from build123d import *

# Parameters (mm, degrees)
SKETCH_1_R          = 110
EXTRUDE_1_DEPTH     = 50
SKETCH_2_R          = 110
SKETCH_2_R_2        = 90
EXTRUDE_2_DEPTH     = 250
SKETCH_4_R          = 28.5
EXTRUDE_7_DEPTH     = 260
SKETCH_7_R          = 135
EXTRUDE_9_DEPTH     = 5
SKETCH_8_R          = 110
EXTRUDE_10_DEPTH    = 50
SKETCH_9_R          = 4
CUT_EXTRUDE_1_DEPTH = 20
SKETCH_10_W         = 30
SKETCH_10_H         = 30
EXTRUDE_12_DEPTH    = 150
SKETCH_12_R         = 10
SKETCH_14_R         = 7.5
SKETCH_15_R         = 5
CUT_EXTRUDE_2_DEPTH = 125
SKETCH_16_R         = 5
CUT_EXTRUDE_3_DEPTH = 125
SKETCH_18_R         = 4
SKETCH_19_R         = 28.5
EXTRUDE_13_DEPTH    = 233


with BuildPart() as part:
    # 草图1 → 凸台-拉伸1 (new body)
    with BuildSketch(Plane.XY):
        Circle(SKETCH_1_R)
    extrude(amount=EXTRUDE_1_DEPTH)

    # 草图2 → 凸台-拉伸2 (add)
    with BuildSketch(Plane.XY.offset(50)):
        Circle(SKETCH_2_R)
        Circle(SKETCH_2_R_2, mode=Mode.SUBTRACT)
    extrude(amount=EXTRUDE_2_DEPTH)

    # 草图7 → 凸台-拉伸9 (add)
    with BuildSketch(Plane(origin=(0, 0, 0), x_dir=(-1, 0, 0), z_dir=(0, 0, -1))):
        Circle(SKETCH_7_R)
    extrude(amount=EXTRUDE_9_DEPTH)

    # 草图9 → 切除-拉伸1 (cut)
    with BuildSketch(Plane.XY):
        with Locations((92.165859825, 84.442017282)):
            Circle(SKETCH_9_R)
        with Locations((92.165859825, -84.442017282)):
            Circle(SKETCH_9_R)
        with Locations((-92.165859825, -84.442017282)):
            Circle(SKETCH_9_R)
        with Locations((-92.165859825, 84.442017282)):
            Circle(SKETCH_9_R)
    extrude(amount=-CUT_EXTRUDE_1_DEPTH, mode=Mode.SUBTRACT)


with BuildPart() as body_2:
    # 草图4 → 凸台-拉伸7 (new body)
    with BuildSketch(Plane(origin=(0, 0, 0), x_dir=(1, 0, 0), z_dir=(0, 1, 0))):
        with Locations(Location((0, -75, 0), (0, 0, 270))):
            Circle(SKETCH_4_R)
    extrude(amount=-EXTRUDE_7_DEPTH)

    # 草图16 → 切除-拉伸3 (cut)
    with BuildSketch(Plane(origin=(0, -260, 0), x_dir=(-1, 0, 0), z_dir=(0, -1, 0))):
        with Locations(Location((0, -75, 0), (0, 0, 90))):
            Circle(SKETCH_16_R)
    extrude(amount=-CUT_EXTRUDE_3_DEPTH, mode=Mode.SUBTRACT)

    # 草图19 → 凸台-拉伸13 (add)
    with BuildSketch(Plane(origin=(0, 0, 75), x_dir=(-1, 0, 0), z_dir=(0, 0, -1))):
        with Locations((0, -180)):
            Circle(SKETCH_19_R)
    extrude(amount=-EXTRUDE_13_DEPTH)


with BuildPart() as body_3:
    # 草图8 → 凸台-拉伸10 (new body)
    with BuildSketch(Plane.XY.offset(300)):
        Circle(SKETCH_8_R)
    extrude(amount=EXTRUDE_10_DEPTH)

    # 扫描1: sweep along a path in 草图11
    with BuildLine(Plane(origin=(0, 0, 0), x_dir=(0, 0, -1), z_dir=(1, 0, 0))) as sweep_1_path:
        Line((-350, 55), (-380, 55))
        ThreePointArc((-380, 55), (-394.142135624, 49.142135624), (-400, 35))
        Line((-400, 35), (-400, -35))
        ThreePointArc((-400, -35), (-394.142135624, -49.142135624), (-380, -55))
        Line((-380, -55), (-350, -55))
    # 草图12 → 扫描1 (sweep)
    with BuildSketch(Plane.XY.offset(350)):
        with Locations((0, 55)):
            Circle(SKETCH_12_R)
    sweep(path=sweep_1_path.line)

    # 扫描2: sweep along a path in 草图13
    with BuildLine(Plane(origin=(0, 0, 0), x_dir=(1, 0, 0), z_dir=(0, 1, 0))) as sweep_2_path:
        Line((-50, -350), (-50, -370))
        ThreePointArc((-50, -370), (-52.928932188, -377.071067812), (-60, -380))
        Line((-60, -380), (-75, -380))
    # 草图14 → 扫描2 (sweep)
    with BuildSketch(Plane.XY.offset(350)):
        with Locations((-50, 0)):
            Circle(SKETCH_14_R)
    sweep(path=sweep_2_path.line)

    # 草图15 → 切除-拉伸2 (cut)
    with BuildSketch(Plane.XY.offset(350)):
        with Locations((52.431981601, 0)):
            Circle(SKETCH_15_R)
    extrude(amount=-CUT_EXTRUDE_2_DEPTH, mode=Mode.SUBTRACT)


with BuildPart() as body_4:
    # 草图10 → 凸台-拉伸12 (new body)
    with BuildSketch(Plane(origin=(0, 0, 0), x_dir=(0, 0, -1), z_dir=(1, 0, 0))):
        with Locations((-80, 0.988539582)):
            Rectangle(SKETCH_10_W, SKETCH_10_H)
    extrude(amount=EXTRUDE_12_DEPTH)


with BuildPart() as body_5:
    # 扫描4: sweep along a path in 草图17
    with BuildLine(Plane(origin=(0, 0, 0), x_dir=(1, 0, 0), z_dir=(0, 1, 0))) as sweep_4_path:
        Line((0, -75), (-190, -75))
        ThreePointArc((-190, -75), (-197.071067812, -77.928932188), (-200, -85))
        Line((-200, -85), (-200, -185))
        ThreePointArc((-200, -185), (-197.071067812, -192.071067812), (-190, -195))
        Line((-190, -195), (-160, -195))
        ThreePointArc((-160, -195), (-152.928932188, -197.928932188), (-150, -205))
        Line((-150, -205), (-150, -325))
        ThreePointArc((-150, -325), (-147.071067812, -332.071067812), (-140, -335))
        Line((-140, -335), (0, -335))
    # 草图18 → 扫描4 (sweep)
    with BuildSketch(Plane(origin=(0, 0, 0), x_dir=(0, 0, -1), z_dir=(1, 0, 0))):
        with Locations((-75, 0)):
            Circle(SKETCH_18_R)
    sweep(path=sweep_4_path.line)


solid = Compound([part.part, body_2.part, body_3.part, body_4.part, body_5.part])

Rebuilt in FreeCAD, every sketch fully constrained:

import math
import FreeCAD as App
import Part
import Sketcher

V = App.Vector

doc = App.newDocument("Part")
params = doc.addObject("Spreadsheet::Sheet", "Params")
for row, (alias, value) in enumerate([
    ("sketch1_diameter", "220 mm"),
    ("pad1_length", "50 mm"),
    ("sketch2_diameter", "220 mm"),
    ("sketch2_diameter2", "180 mm"),
    ("pad2_length", "250 mm"),
    ("sketch3_diameter", "270 mm"),
    ("pad3_length", "5 mm"),
    ("sketch4_diameter", "8 mm"),
    ("pocket1_length", "20 mm"),
    ("sketch5_diameter", "57 mm"),
    ("pad4_length", "260 mm"),
    ("sketch6_diameter", "10 mm"),
    ("pocket2_length", "125 mm"),
    ("sketch7_diameter", "57 mm"),
    ("pad5_length", "233 mm"),
    ("sketch8_diameter", "220 mm"),
    ("pad6_length", "50 mm"),
    ("sketch9_diameter", "20 mm"),
    ("sketch10_radius", "20 mm"),
    ("sketch10_width", "70 mm"),
    ("sketch10_height", "30 mm"),
    ("sketch11_diameter", "15 mm"),
    ("sketch12_radius", "10 mm"),
    ("sketch12_width", "15 mm"),
    ("sketch12_height", "20 mm"),
    ("sketch13_diameter", "10 mm"),
    ("pocket3_length", "125 mm"),
    ("sketch14_width", "30 mm"),
    ("pad7_length", "150 mm"),
    ("sketch15_diameter", "8 mm"),
    ("sketch16_radius", "10 mm"),
    ("sketch16_width", "190 mm"),
    ("sketch16_width2", "30 mm"),
    ("sketch16_height", "100 mm"),
    ("sketch16_height2", "120 mm"),
], start=1):
    params.set(f"A{row}", alias)
    params.set(f"B{row}", "=" + value)
    params.setAlias(f"B{row}", alias)

body = doc.addObject("PartDesign::Body", "Body")

# Sketch on XY plane
sketch1 = doc.addObject("Sketcher::SketchObject", "Sketch")
body.addObject(sketch1)
sketch1.AttachmentSupport = (doc.XY_Plane, [""])
sketch1.MapMode = "FlatFace"
sketch1.addGeometry(Part.Circle(V(0, 0, 0), V(0, 0, 1), 110), False)
sketch1.addConstraint(Sketcher.Constraint("Coincident", 0, 3, -1, 1))
sketch1.addConstraint(Sketcher.Constraint("Diameter", 0, 220.0))
sketch1.setExpression("Constraints[1]", "Params.sketch1_diameter")
pad1 = doc.addObject("PartDesign::Pad", "Pad")
body.addObject(pad1)
pad1.Profile = sketch1
pad1.setExpression("Length", "Params.pad1_length")

# Sketch on XY plane
sketch2 = doc.addObject("Sketcher::SketchObject", "Sketch001")
body.addObject(sketch2)
sketch2.AttachmentSupport = (doc.XY_Plane, [""])
sketch2.MapMode = "FlatFace"
sketch2.AttachmentOffset = App.Placement(V(0, 0, 50), App.Rotation())
sketch2.addGeometry(Part.Circle(V(0, 0, 0), V(0, 0, 1), 110), False)
sketch2.addGeometry(Part.Circle(V(0, 0, 0), V(0, 0, 1), 90), False)
sketch2.addConstraint(Sketcher.Constraint("Coincident", 0, 3, -1, 1))
sketch2.addConstraint(Sketcher.Constraint("Coincident", 1, 3, -1, 1))
sketch2.addConstraint(Sketcher.Constraint("Diameter", 0, 220.0))
sketch2.addConstraint(Sketcher.Constraint("Diameter", 1, 180.0))
sketch2.setExpression("Constraints[2]", "Params.sketch2_diameter")
sketch2.setExpression("Constraints[3]", "Params.sketch2_diameter2")
pad2 = doc.addObject("PartDesign::Pad", "Pad001")
body.addObject(pad2)
pad2.Profile = sketch2
pad2.setExpression("Length", "Params.pad2_length")

# Sketch on XY plane
sketch3 = doc.addObject("Sketcher::SketchObject", "Sketch002")
body.addObject(sketch3)
sketch3.AttachmentSupport = (doc.XY_Plane, [""])
sketch3.MapMode = "FlatFace"
sketch3.addGeometry(Part.Circle(V(0, 0, 0), V(0, 0, 1), 135), False)
sketch3.addConstraint(Sketcher.Constraint("Coincident", 0, 3, -1, 1))
sketch3.addConstraint(Sketcher.Constraint("Diameter", 0, 270.0))
sketch3.setExpression("Constraints[1]", "Params.sketch3_diameter")
pad3 = doc.addObject("PartDesign::Pad", "Pad002")
body.addObject(pad3)
pad3.Profile = sketch3
pad3.setExpression("Length", "Params.pad3_length")
pad3.Reversed = True

# Sketch on XY plane
sketch4 = doc.addObject("Sketcher::SketchObject", "Sketch003")
body.addObject(sketch4)
sketch4.AttachmentSupport = (doc.XY_Plane, [""])
sketch4.MapMode = "FlatFace"
sketch4.addGeometry(Part.Circle(V(92.2, 84.4, 0), V(0, 0, 1), 4), False)
sketch4.addGeometry(Part.Circle(V(92.2, -84.4, 0), V(0, 0, 1), 4), False)
sketch4.addGeometry(Part.Circle(V(-92.2, -84.4, 0), V(0, 0, 1), 4), False)
sketch4.addGeometry(Part.Circle(V(-92.2, 84.4, 0), V(0, 0, 1), 4), False)
sketch4.addConstraint(Sketcher.Constraint("Equal", 0, 1))
sketch4.addConstraint(Sketcher.Constraint("Equal", 1, 2))
sketch4.addConstraint(Sketcher.Constraint("Equal", 2, 3))
sketch4.addConstraint(Sketcher.Constraint("Symmetric", 0, 3, 2, 3, -1, 1))
sketch4.addConstraint(Sketcher.Constraint("Symmetric", 1, 3, 3, 3, -1, 1))
sketch4.addConstraint(Sketcher.Constraint("Symmetric", 1, 3, 2, 3, -2))
sketch4.addConstraint(Sketcher.Constraint("Diameter", 0, 8.0))
sketch4.addConstraint(Sketcher.Constraint("DistanceX", -1, 1, 0, 3, 92.16586))
sketch4.addConstraint(Sketcher.Constraint("DistanceY", -1, 1, 0, 3, 84.442017))
sketch4.setExpression("Constraints[6]", "Params.sketch4_diameter")
pocket1 = doc.addObject("PartDesign::Pocket", "Pocket")
body.addObject(pocket1)
pocket1.Profile = sketch4
pocket1.setExpression("Length", "Params.pocket1_length")
body2 = doc.addObject("PartDesign::Body", "Body001")

# Sketch on XZ plane
sketch5 = doc.addObject("Sketcher::SketchObject", "Sketch004")
body2.addObject(sketch5)
sketch5.AttachmentSupport = (doc.getObject("XZ_Plane001"), [""])
sketch5.MapMode = "FlatFace"
sketch5.addGeometry(Part.Circle(V(0, 75, 0), V(0, 0, 1), 28), False)
sketch5.addConstraint(Sketcher.Constraint("PointOnObject", 0, 3, -2))
sketch5.addConstraint(Sketcher.Constraint("Diameter", 0, 57.0))
sketch5.addConstraint(Sketcher.Constraint("DistanceY", -1, 1, 0, 3, 75.0))
sketch5.setExpression("Constraints[1]", "Params.sketch5_diameter")
pad4 = doc.addObject("PartDesign::Pad", "Pad003")
body2.addObject(pad4)
pad4.Profile = sketch5
pad4.setExpression("Length", "Params.pad4_length")

# Sketch on XZ plane
sketch6 = doc.addObject("Sketcher::SketchObject", "Sketch005")
body2.addObject(sketch6)
sketch6.AttachmentSupport = (doc.getObject("XZ_Plane001"), [""])
sketch6.MapMode = "FlatFace"
sketch6.AttachmentOffset = App.Placement(V(0, 0, 260), App.Rotation())
sketch6.addGeometry(Part.Circle(V(0, 75, 0), V(0, 0, 1), 5), False)
sketch6.addConstraint(Sketcher.Constraint("PointOnObject", 0, 3, -2))
sketch6.addConstraint(Sketcher.Constraint("Diameter", 0, 10.0))
sketch6.addConstraint(Sketcher.Constraint("DistanceY", -1, 1, 0, 3, 75.0))
sketch6.setExpression("Constraints[1]", "Params.sketch6_diameter")
pocket2 = doc.addObject("PartDesign::Pocket", "Pocket001")
body2.addObject(pocket2)
pocket2.Profile = sketch6
pocket2.setExpression("Length", "Params.pocket2_length")

# Sketch on XY plane
sketch7 = doc.addObject("Sketcher::SketchObject", "Sketch006")
body2.addObject(sketch7)
sketch7.AttachmentSupport = (doc.getObject("XY_Plane001"), [""])
sketch7.MapMode = "FlatFace"
sketch7.AttachmentOffset = App.Placement(V(0, 0, 75), App.Rotation())
sketch7.addGeometry(Part.Circle(V(0, -180, 0), V(0, 0, 1), 28), False)
sketch7.addConstraint(Sketcher.Constraint("PointOnObject", 0, 3, -2))
sketch7.addConstraint(Sketcher.Constraint("Diameter", 0, 57.0))
sketch7.addConstraint(Sketcher.Constraint("DistanceY", 0, 3, -1, 1, 180.0))
sketch7.setExpression("Constraints[1]", "Params.sketch7_diameter")
pad5 = doc.addObject("PartDesign::Pad", "Pad004")
body2.addObject(pad5)
pad5.Profile = sketch7
pad5.setExpression("Length", "Params.pad5_length")
body3 = doc.addObject("PartDesign::Body", "Body002")

# Sketch on XY plane
sketch8 = doc.addObject("Sketcher::SketchObject", "Sketch007")
body3.addObject(sketch8)
sketch8.AttachmentSupport = (doc.getObject("XY_Plane002"), [""])
sketch8.MapMode = "FlatFace"
sketch8.AttachmentOffset = App.Placement(V(0, 0, 300), App.Rotation())
sketch8.addGeometry(Part.Circle(V(0, 0, 0), V(0, 0, 1), 110), False)
sketch8.addConstraint(Sketcher.Constraint("Coincident", 0, 3, -1, 1))
sketch8.addConstraint(Sketcher.Constraint("Diameter", 0, 220.0))
sketch8.setExpression("Constraints[1]", "Params.sketch8_diameter")
pad6 = doc.addObject("PartDesign::Pad", "Pad005")
body3.addObject(pad6)
pad6.Profile = sketch8
pad6.setExpression("Length", "Params.pad6_length")

# Sketch on XY plane
sketch9 = doc.addObject("Sketcher::SketchObject", "Sketch008")
body3.addObject(sketch9)
sketch9.AttachmentSupport = (doc.getObject("XY_Plane002"), [""])
sketch9.MapMode = "FlatFace"
sketch9.AttachmentOffset = App.Placement(V(0, 0, 350), App.Rotation())
sketch9.addGeometry(Part.Circle(V(0, 55, 0), V(0, 0, 1), 10), False)
sketch9.addConstraint(Sketcher.Constraint("PointOnObject", 0, 3, -2))
sketch9.addConstraint(Sketcher.Constraint("Diameter", 0, 20.0))
sketch9.addConstraint(Sketcher.Constraint("DistanceY", -1, 1, 0, 3, 55.0))
sketch9.setExpression("Constraints[1]", "Params.sketch9_diameter")

# Sketch on YZ plane
sketch10 = doc.addObject("Sketcher::SketchObject", "Sketch009")
body3.addObject(sketch10)
sketch10.AttachmentSupport = (doc.getObject("YZ_Plane002"), [""])
sketch10.MapMode = "FlatFace"
sketch10.addGeometry(Part.LineSegment(V(55, 350, 0), V(55, 380, 0)), False)
sketch10.addGeometry(Part.ArcOfCircle(Part.Circle(V(35, 380, 0), V(0, 0, 1), 20), math.radians(0), math.radians(90)), False)
sketch10.addGeometry(Part.LineSegment(V(35, 400, 0), V(-35, 400, 0)), False)
sketch10.addGeometry(Part.ArcOfCircle(Part.Circle(V(-35, 380, 0), V(0, 0, 1), 20), math.radians(90), math.radians(180)), False)
sketch10.addGeometry(Part.LineSegment(V(-55, 380, 0), V(-55, 350, 0)), False)
sketch10.addConstraint(Sketcher.Constraint("Tangent", 0, 2, 1, 1))
sketch10.addConstraint(Sketcher.Constraint("Tangent", 1, 2, 2, 1))
sketch10.addConstraint(Sketcher.Constraint("Tangent", 2, 2, 3, 1))
sketch10.addConstraint(Sketcher.Constraint("Tangent", 3, 2, 4, 1))
sketch10.addConstraint(Sketcher.Constraint("Vertical", 0))
sketch10.addConstraint(Sketcher.Constraint("Horizontal", 2))
sketch10.addConstraint(Sketcher.Constraint("Vertical", 4))
sketch10.addConstraint(Sketcher.Constraint("Equal", 1, 3))
sketch10.addConstraint(Sketcher.Constraint("Symmetric", 0, 1, 4, 2, -2))
sketch10.addConstraint(Sketcher.Constraint("Radius", 1, 20.0))
sketch10.addConstraint(Sketcher.Constraint("DistanceX", 2, 2, 2, 1, 70.0))
sketch10.addConstraint(Sketcher.Constraint("DistanceY", 0, 1, 0, 2, 30.0))
sketch10.addConstraint(Sketcher.Constraint("DistanceY", -1, 1, 1, 3, 380.0))
sketch10.setExpression("Constraints[9]", "Params.sketch10_radius")
sketch10.setExpression("Constraints[10]", "Params.sketch10_width")
sketch10.setExpression("Constraints[11]", "Params.sketch10_height")
doc.recompute()

additivepipe = doc.addObject("PartDesign::AdditivePipe", "AdditivePipe")
body3.addObject(additivepipe)
additivepipe.Profile = sketch9
additivepipe.Spine = (sketch10, ["Edge1", "Edge2", "Edge3", "Edge4", "Edge5"])

# Sketch on XY plane
sketch11 = doc.addObject("Sketcher::SketchObject", "Sketch010")
body3.addObject(sketch11)
sketch11.AttachmentSupport = (doc.getObject("XY_Plane002"), [""])
sketch11.MapMode = "FlatFace"
sketch11.AttachmentOffset = App.Placement(V(0, 0, 350), App.Rotation())
sketch11.addGeometry(Part.Circle(V(-50, 0, 0), V(0, 0, 1), 8), False)
sketch11.addConstraint(Sketcher.Constraint("PointOnObject", 0, 3, -1))
sketch11.addConstraint(Sketcher.Constraint("Diameter", 0, 15.0))
sketch11.addConstraint(Sketcher.Constraint("DistanceX", 0, 3, -1, 1, 50.0))
sketch11.setExpression("Constraints[1]", "Params.sketch11_diameter")

# Sketch on XZ plane
sketch12 = doc.addObject("Sketcher::SketchObject", "Sketch011")
body3.addObject(sketch12)
sketch12.AttachmentSupport = (doc.getObject("XZ_Plane002"), [""])
sketch12.MapMode = "FlatFace"
sketch12.addGeometry(Part.LineSegment(V(-50, 350, 0), V(-50, 370, 0)), False)
sketch12.addGeometry(Part.ArcOfCircle(Part.Circle(V(-60, 370, 0), V(0, 0, 1), 10), math.radians(0), math.radians(90)), False)
sketch12.addGeometry(Part.LineSegment(V(-60, 380, 0), V(-75, 380, 0)), False)
sketch12.addConstraint(Sketcher.Constraint("Tangent", 0, 2, 1, 1))
sketch12.addConstraint(Sketcher.Constraint("Tangent", 1, 2, 2, 1))
sketch12.addConstraint(Sketcher.Constraint("Vertical", 0))
sketch12.addConstraint(Sketcher.Constraint("Horizontal", 2))
sketch12.addConstraint(Sketcher.Constraint("Radius", 1, 10.0))
sketch12.addConstraint(Sketcher.Constraint("DistanceX", 2, 2, 2, 1, 15.0))
sketch12.addConstraint(Sketcher.Constraint("DistanceY", 0, 1, 0, 2, 20.0))
sketch12.addConstraint(Sketcher.Constraint("DistanceX", 1, 3, -1, 1, 60.0))
sketch12.addConstraint(Sketcher.Constraint("DistanceY", -1, 1, 1, 3, 370.0))
sketch12.setExpression("Constraints[4]", "Params.sketch12_radius")
sketch12.setExpression("Constraints[5]", "Params.sketch12_width")
sketch12.setExpression("Constraints[6]", "Params.sketch12_height")
doc.recompute()

additivepipe2 = doc.addObject("PartDesign::AdditivePipe", "AdditivePipe001")
body3.addObject(additivepipe2)
additivepipe2.Profile = sketch11
additivepipe2.Spine = (sketch12, ["Edge1", "Edge2", "Edge3"])

# Sketch on XY plane
sketch13 = doc.addObject("Sketcher::SketchObject", "Sketch012")
body3.addObject(sketch13)
sketch13.AttachmentSupport = (doc.getObject("XY_Plane002"), [""])
sketch13.MapMode = "FlatFace"
sketch13.AttachmentOffset = App.Placement(V(0, 0, 350), App.Rotation())
sketch13.addGeometry(Part.Circle(V(52, 0, 0), V(0, 0, 1), 5), False)
sketch13.addConstraint(Sketcher.Constraint("PointOnObject", 0, 3, -1))
sketch13.addConstraint(Sketcher.Constraint("Diameter", 0, 10.0))
sketch13.addConstraint(Sketcher.Constraint("DistanceX", -1, 1, 0, 3, 52.431982))
sketch13.setExpression("Constraints[1]", "Params.sketch13_diameter")
pocket3 = doc.addObject("PartDesign::Pocket", "Pocket002")
body3.addObject(pocket3)
pocket3.Profile = sketch13
pocket3.setExpression("Length", "Params.pocket3_length")
body4 = doc.addObject("PartDesign::Body", "Body003")

# Sketch on YZ plane
sketch14 = doc.addObject("Sketcher::SketchObject", "Sketch013")
body4.addObject(sketch14)
sketch14.AttachmentSupport = (doc.getObject("YZ_Plane003"), [""])
sketch14.MapMode = "FlatFace"
sketch14.addGeometry(Part.LineSegment(V(16, 95, 0), V(-14, 95, 0)), False)
sketch14.addGeometry(Part.LineSegment(V(-14, 95, 0), V(-14, 65, 0)), False)
sketch14.addGeometry(Part.LineSegment(V(-14, 65, 0), V(16, 65, 0)), False)
sketch14.addGeometry(Part.LineSegment(V(16, 65, 0), V(16, 95, 0)), False)
sketch14.addConstraint(Sketcher.Constraint("Coincident", 0, 2, 1, 1))
sketch14.addConstraint(Sketcher.Constraint("Coincident", 1, 2, 2, 1))
sketch14.addConstraint(Sketcher.Constraint("Coincident", 2, 2, 3, 1))
sketch14.addConstraint(Sketcher.Constraint("Coincident", 3, 2, 0, 1))
sketch14.addConstraint(Sketcher.Constraint("Horizontal", 0))
sketch14.addConstraint(Sketcher.Constraint("Vertical", 1))
sketch14.addConstraint(Sketcher.Constraint("Horizontal", 2))
sketch14.addConstraint(Sketcher.Constraint("Vertical", 3))
sketch14.addConstraint(Sketcher.Constraint("Equal", 2, 1))
sketch14.addConstraint(Sketcher.Constraint("DistanceX", 0, 2, 0, 1, 30.0))
sketch14.addConstraint(Sketcher.Constraint("DistanceY", -1, 1, 0, 2, 95.0))
sketch14.addConstraint(Sketcher.Constraint("DistanceX", 0, 2, -1, 1, 14.01146))
sketch14.setExpression("Constraints[9]", "Params.sketch14_width")
pad7 = doc.addObject("PartDesign::Pad", "Pad006")
body4.addObject(pad7)
pad7.Profile = sketch14
pad7.setExpression("Length", "Params.pad7_length")
body5 = doc.addObject("PartDesign::Body", "Body004")

# Sketch on YZ plane
sketch15 = doc.addObject("Sketcher::SketchObject", "Sketch014")
body5.addObject(sketch15)
sketch15.AttachmentSupport = (doc.getObject("YZ_Plane004"), [""])
sketch15.MapMode = "FlatFace"
sketch15.addGeometry(Part.Circle(V(0, 75, 0), V(0, 0, 1), 4), False)
sketch15.addConstraint(Sketcher.Constraint("PointOnObject", 0, 3, -2))
sketch15.addConstraint(Sketcher.Constraint("Diameter", 0, 8.0))
sketch15.addConstraint(Sketcher.Constraint("DistanceY", -1, 1, 0, 3, 75.0))
sketch15.setExpression("Constraints[1]", "Params.sketch15_diameter")

# Sketch on XZ plane
sketch16 = doc.addObject("Sketcher::SketchObject", "Sketch015")
body5.addObject(sketch16)
sketch16.AttachmentSupport = (doc.getObject("XZ_Plane004"), [""])
sketch16.MapMode = "FlatFace"
sketch16.addGeometry(Part.LineSegment(V(0, 75, 0), V(-190, 75, 0)), False)
sketch16.addGeometry(Part.ArcOfCircle(Part.Circle(V(-190, 85, 0), V(0, 0, 1), 10), math.radians(180), math.radians(270)), False)
sketch16.addGeometry(Part.LineSegment(V(-200, 85, 0), V(-200, 185, 0)), False)
sketch16.addGeometry(Part.ArcOfCircle(Part.Circle(V(-190, 185, 0), V(0, 0, 1), 10), math.radians(90), math.radians(180)), False)
sketch16.addGeometry(Part.LineSegment(V(-190, 195, 0), V(-160, 195, 0)), False)
sketch16.addGeometry(Part.ArcOfCircle(Part.Circle(V(-160, 205, 0), V(0, 0, 1), 10), math.radians(-90), math.radians(0)), False)
sketch16.addGeometry(Part.LineSegment(V(-150, 205, 0), V(-150, 325, 0)), False)
sketch16.addGeometry(Part.ArcOfCircle(Part.Circle(V(-140, 325, 0), V(0, 0, 1), 10), math.radians(90), math.radians(180)), False)
sketch16.addGeometry(Part.LineSegment(V(-140, 335, 0), V(0, 335, 0)), False)
sketch16.addConstraint(Sketcher.Constraint("Tangent", 0, 2, 1, 2))
sketch16.addConstraint(Sketcher.Constraint("Tangent", 1, 1, 2, 1))
sketch16.addConstraint(Sketcher.Constraint("Tangent", 2, 2, 3, 2))
sketch16.addConstraint(Sketcher.Constraint("Tangent", 3, 1, 4, 1))
sketch16.addConstraint(Sketcher.Constraint("Tangent", 4, 2, 5, 1))
sketch16.addConstraint(Sketcher.Constraint("Tangent", 5, 2, 6, 1))
sketch16.addConstraint(Sketcher.Constraint("Tangent", 6, 2, 7, 2))
sketch16.addConstraint(Sketcher.Constraint("Tangent", 7, 1, 8, 1))
sketch16.addConstraint(Sketcher.Constraint("Horizontal", 0))
sketch16.addConstraint(Sketcher.Constraint("Vertical", 2))
sketch16.addConstraint(Sketcher.Constraint("Horizontal", 4))
sketch16.addConstraint(Sketcher.Constraint("Vertical", 6))
sketch16.addConstraint(Sketcher.Constraint("Horizontal", 8))
sketch16.addConstraint(Sketcher.Constraint("Equal", 1, 3))
sketch16.addConstraint(Sketcher.Constraint("Equal", 3, 5))
sketch16.addConstraint(Sketcher.Constraint("Equal", 5, 7))
sketch16.addConstraint(Sketcher.Constraint("PointOnObject", 0, 1, -2))
sketch16.addConstraint(Sketcher.Constraint("PointOnObject", 8, 2, -2))
sketch16.addConstraint(Sketcher.Constraint("Radius", 1, 10.0))
sketch16.addConstraint(Sketcher.Constraint("DistanceX", 0, 2, 0, 1, 190.0))
sketch16.addConstraint(Sketcher.Constraint("DistanceX", 4, 1, 4, 2, 30.0))
sketch16.addConstraint(Sketcher.Constraint("DistanceY", 2, 1, 2, 2, 100.0))
sketch16.addConstraint(Sketcher.Constraint("DistanceY", 6, 1, 6, 2, 120.0))
sketch16.addConstraint(Sketcher.Constraint("DistanceY", -1, 1, 1, 3, 85.0))
sketch16.setExpression("Constraints[18]", "Params.sketch16_radius")
sketch16.setExpression("Constraints[19]", "Params.sketch16_width")
sketch16.setExpression("Constraints[20]", "Params.sketch16_width2")
sketch16.setExpression("Constraints[21]", "Params.sketch16_height")
sketch16.setExpression("Constraints[22]", "Params.sketch16_height2")
doc.recompute()

additivepipe3 = doc.addObject("PartDesign::AdditivePipe", "AdditivePipe002")
body5.addObject(additivepipe3)
additivepipe3.Profile = sketch15
additivepipe3.Spine = (sketch16, ["Edge1", "Edge2", "Edge3", "Edge4", "Edge5", "Edge6", "Edge7", "Edge8", "Edge9"])

doc.recompute()
